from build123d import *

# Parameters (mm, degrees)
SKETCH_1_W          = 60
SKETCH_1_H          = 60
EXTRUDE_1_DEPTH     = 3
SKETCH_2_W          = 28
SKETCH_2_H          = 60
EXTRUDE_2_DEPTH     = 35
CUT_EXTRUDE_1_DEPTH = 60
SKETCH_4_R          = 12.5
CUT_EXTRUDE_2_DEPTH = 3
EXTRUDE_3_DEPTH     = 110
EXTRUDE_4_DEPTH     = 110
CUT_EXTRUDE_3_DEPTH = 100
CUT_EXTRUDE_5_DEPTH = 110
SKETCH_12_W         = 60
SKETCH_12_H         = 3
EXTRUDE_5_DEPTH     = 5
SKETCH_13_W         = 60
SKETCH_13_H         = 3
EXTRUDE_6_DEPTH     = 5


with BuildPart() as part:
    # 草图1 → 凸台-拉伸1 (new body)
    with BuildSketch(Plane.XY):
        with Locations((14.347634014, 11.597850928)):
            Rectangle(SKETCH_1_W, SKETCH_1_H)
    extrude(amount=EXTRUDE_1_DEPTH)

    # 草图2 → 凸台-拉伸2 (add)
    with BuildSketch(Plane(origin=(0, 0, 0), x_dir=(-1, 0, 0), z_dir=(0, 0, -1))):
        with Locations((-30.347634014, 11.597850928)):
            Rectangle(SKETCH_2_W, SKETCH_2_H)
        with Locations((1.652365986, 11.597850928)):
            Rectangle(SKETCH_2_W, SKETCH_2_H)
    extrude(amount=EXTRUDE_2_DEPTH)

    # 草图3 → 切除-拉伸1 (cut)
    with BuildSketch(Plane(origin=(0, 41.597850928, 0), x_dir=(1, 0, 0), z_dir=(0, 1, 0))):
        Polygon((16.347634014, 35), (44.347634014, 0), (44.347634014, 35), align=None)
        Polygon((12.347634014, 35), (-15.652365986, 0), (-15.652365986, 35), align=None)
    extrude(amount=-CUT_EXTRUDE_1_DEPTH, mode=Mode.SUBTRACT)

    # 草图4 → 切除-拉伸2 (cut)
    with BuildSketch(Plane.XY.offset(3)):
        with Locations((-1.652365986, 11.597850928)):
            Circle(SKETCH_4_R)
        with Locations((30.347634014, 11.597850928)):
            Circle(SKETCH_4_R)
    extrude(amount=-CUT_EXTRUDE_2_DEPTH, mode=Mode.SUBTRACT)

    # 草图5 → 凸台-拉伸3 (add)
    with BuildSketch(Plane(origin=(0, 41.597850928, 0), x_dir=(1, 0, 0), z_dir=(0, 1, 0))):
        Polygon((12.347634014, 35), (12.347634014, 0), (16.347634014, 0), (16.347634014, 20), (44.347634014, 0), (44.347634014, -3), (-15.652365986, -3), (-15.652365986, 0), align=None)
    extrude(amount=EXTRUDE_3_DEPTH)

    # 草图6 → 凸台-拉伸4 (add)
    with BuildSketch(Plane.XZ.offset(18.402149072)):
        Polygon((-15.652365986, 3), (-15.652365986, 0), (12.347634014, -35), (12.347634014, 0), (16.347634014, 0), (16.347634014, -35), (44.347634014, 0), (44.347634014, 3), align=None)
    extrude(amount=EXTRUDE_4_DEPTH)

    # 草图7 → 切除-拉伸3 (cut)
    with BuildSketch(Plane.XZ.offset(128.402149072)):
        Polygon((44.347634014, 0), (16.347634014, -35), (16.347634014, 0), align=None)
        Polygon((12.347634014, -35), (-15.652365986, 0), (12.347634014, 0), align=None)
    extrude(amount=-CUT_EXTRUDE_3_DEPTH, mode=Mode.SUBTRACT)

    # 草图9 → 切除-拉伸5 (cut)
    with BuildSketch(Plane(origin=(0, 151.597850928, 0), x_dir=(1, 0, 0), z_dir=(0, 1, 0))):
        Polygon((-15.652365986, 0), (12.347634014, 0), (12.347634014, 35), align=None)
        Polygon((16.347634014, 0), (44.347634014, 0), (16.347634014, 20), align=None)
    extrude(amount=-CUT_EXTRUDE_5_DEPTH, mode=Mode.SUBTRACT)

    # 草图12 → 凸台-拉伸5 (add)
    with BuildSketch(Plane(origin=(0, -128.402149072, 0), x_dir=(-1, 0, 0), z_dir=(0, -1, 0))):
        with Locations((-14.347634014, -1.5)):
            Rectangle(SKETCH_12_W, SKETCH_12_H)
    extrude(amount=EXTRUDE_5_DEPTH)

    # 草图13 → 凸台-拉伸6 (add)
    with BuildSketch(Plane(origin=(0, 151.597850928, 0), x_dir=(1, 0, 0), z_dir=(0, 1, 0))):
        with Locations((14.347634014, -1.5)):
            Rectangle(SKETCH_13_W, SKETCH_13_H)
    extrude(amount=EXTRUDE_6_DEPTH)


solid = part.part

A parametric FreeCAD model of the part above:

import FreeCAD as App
import Part
import Sketcher
Q = App.Units.Quantity

doc = App.newDocument("Part")
body = doc.addObject("PartDesign::Body", "Body")

# Sketch on XY plane
sketch1 = body.newObject("Sketcher::SketchObject", "Sketch")
sketch1.AttachmentSupport = (doc.getObject("XY_Plane"), [""])
sketch1.MapMode = "FlatFace"
sketch1.addGeometry(Part.LineSegment(App.Vector(-15.652366, 41.597851, 0), App.Vector(-15.652366, -18.402149, 0)), False)
sketch1.addGeometry(Part.LineSegment(App.Vector(-15.652366, -18.402149, 0), App.Vector(44.347634, -18.402149, 0)), False)
sketch1.addGeometry(Part.LineSegment(App.Vector(44.347634, -18.402149, 0), App.Vector(44.347634, 41.597851, 0)), False)
sketch1.addGeometry(Part.LineSegment(App.Vector(44.347634, 41.597851, 0), App.Vector(-15.652366, 41.597851, 0)), False)
sketch1.addConstraint(Sketcher.Constraint("Coincident", 0, 2, 1, 1))
sketch1.addConstraint(Sketcher.Constraint("Coincident", 1, 2, 2, 1))
sketch1.addConstraint(Sketcher.Constraint("Coincident", 2, 2, 3, 1))
sketch1.addConstraint(Sketcher.Constraint("Coincident", 3, 2, 0, 1))
sketch1.addConstraint(Sketcher.Constraint("Vertical", 0))
sketch1.addConstraint(Sketcher.Constraint("Horizontal", 1))
sketch1.addConstraint(Sketcher.Constraint("Vertical", 2))
sketch1.addConstraint(Sketcher.Constraint("Horizontal", 3))
sketch1.addConstraint(Sketcher.Constraint("Equal", 3, 0))
sketch1.addConstraint(Sketcher.Constraint("DistanceX", 1, 1, 1, 2, Q("60 mm")))
sketch1.addConstraint(Sketcher.Constraint("DistanceY", 0, 2, -1, 1, Q("18.402149 mm")))
sketch1.addConstraint(Sketcher.Constraint("DistanceX", 0, 2, -1, 1, Q("15.652366 mm")))
pad1 = body.newObject("PartDesign::Pad", "Pad")
pad1.Profile = sketch1
pad1.Length = 3

# Sketch on XY plane
sketch2 = body.newObject("Sketcher::SketchObject", "Sketch001")
sketch2.AttachmentSupport = (doc.getObject("XY_Plane"), [""])
sketch2.MapMode = "FlatFace"
sketch2.addGeometry(Part.LineSegment(App.Vector(44.347634, 41.597851, 0), App.Vector(44.347634, -18.402149, 0)), False)
sketch2.addGeometry(Part.LineSegment(App.Vector(44.347634, -18.402149, 0), App.Vector(16.347634, -18.402149, 0)), False)
sketch2.addGeometry(Part.LineSegment(App.Vector(16.347634, -18.402149, 0), App.Vector(16.347634, 41.597851, 0)), False)
sketch2.addGeometry(Part.LineSegment(App.Vector(16.347634, 41.597851, 0), App.Vector(44.347634, 41.597851, 0)), False)
sketch2.addGeometry(Part.LineSegment(App.Vector(12.347634, 41.597851, 0), App.Vector(12.347634, -18.402149, 0)), False)
sketch2.addGeometry(Part.LineSegment(App.Vector(12.347634, -18.402149, 0), App.Vector(-15.652366, -18.402149, 0)), False)
sketch2.addGeometry(Part.LineSegment(App.Vector(-15.652366, -18.402149, 0), App.Vector(-15.652366, 41.597851, 0)), False)
sketch2.addGeometry(Part.LineSegment(App.Vector(-15.652366, 41.597851, 0), App.Vector(12.347634, 41.597851, 0)), False)
sketch2.addConstraint(Sketcher.Constraint("Coincident", 0, 2, 1, 1))
sketch2.addConstraint(Sketcher.Constraint("Coincident", 1, 2, 2, 1))
sketch2.addConstraint(Sketcher.Constraint("Coincident", 2, 2, 3, 1))
sketch2.addConstraint(Sketcher.Constraint("Coincident", 3, 2, 0, 1))
sketch2.addConstraint(Sketcher.Constraint("Coincident", 4, 2, 5, 1))
sketch2.addConstraint(Sketcher.Constraint("Coincident", 5, 2, 6, 1))
sketch2.addConstraint(Sketcher.Constraint("Coincident", 6, 2, 7, 1))
sketch2.addConstraint(Sketcher.Constraint("Coincident", 7, 2, 4, 1))
sketch2.addConstraint(Sketcher.Constraint("Vertical", 0))
sketch2.addConstraint(Sketcher.Constraint("Horizontal", 1))
sketch2.addConstraint(Sketcher.Constraint("Vertical", 2))
sketch2.addConstraint(Sketcher.Constraint("Horizontal", 3))
sketch2.addConstraint(Sketcher.Constraint("Vertical", 4))
sketch2.addConstraint(Sketcher.Constraint("Horizontal", 5))
sketch2.addConstraint(Sketcher.Constraint("Vertical", 6))
sketch2.addConstraint(Sketcher.Constraint("Horizontal", 7))
sketch2.addConstraint(Sketcher.Constraint("Horizontal", 1, 2, 4, 2))
sketch2.addConstraint(Sketcher.Constraint("Horizontal", 3, 2, 6, 2))
sketch2.addConstraint(Sketcher.Constraint("Equal", 3, 5))
sketch2.addConstraint(Sketcher.Constraint("DistanceX", 1, 2, 1, 1, Q("28 mm")))
sketch2.addConstraint(Sketcher.Constraint("DistanceY", 0, 2, 0, 1, Q("60 mm")))
sketch2.addConstraint(Sketcher.Constraint("DistanceX", 4, 2, 1, 2, Q("4 mm")))
sketch2.addConstraint(Sketcher.Constraint("DistanceY", 0, 2, -1, 1, Q("18.402149 mm")))
sketch2.addConstraint(Sketcher.Constraint("DistanceX", -1, 1, 0, 2, Q("44.347634 mm")))
pad2 = body.newObject("PartDesign::Pad", "Pad001")
pad2.Profile = sketch2
pad2.Length = 35
pad2.Reversed = True

# Sketch on XZ plane
sketch3 = body.newObject("Sketcher::SketchObject", "Sketch002")
sketch3.AttachmentSupport = (doc.getObject("XZ_Plane"), [""])
sketch3.MapMode = "FlatFace"
sketch3.AttachmentOffset = App.Placement(App.Vector(0, 0, -41.597851), App.Rotation())
sketch3.addGeometry(Part.LineSegment(App.Vector(16.347634, -35, 0), App.Vector(44.347634, 0, 0)), False)
sketch3.addGeometry(Part.LineSegment(App.Vector(44.347634, 0, 0), App.Vector(44.347634, -35, 0)), False)
sketch3.addGeometry(Part.LineSegment(App.Vector(44.347634, -35, 0), App.Vector(16.347634, -35, 0)), False)
sketch3.addGeometry(Part.LineSegment(App.Vector(-15.652366, 0, 0), App.Vector(12.347634, -35, 0)), False)
sketch3.addGeometry(Part.LineSegment(App.Vector(12.347634, -35, 0), App.Vector(-15.652366, -35, 0)), False)
sketch3.addGeometry(Part.LineSegment(App.Vector(-15.652366, -35, 0), App.Vector(-15.652366, 0, 0)), False)
sketch3.addConstraint(Sketcher.Constraint("Coincident", 0, 2, 1, 1))
sketch3.addConstraint(Sketcher.Constraint("Coincident", 1, 2, 2, 1))
sketch3.addConstraint(Sketcher.Constraint("Coincident", 2, 2, 0, 1))
sketch3.addConstraint(Sketcher.Constraint("Coincident", 3, 2, 4, 1))
sketch3.addConstraint(Sketcher.Constraint("Coincident", 4, 2, 5, 1))
sketch3.addConstraint(Sketcher.Constraint("Coincident", 5, 2, 3, 1))
sketch3.addConstraint(Sketcher.Constraint("Vertical", 1))
sketch3.addConstraint(Sketcher.Constraint("Horizontal", 2))
sketch3.addConstraint(Sketcher.Constraint("Horizontal", 4))
sketch3.addConstraint(Sketcher.Constraint("Vertical", 5))
sketch3.addConstraint(Sketcher.Constraint("PointOnObject", 0, 2, -1))
sketch3.addConstraint(Sketcher.Constraint("PointOnObject", 5, 2, -1))
sketch3.addConstraint(Sketcher.Constraint("Horizontal", 2, 2, 3, 2))
sketch3.addConstraint(Sketcher.Constraint("Equal", 2, 4))
sketch3.addConstraint(Sketcher.Constraint("DistanceX", 2, 2, 2, 1, Q("28 mm")))
sketch3.addConstraint(Sketcher.Constraint("DistanceY", 1, 2, 1, 1, Q("35 mm")))
sketch3.addConstraint(Sketcher.Constraint("DistanceX", 3, 2, 2, 2, Q("4 mm")))
sketch3.addConstraint(Sketcher.Constraint("DistanceX", -1, 1, 0, 2, Q("44.347634 mm")))
pocket1 = body.newObject("PartDesign::Pocket", "Pocket")
pocket1.Profile = sketch3
pocket1.Length = 60
pocket1.Reversed = True

# Sketch on XY plane
sketch4 = body.newObject("Sketcher::SketchObject", "Sketch003")
sketch4.AttachmentSupport = (doc.getObject("XY_Plane"), [""])
sketch4.MapMode = "FlatFace"
sketch4.AttachmentOffset = App.Placement(App.Vector(0, 0, 3), App.Rotation())
sketch4.addGeometry(Part.Circle(App.Vector(-1.652366, 11.597851, 0), App.Vector(0, 0, 1), 12.5), False)
sketch4.addGeometry(Part.Circle(App.Vector(30.347634, 11.597851, 0), App.Vector(0, 0, 1), 12.5), False)
sketch4.addConstraint(Sketcher.Constraint("Equal", 0, 1))
sketch4.addConstraint(Sketcher.Constraint("Horizontal", 0, 3, 1, 3))
sketch4.addConstraint(Sketcher.Constraint("Diameter", 0, Q("25 mm")))
sketch4.addConstraint(Sketcher.Constraint("DistanceX", 0, 3, 1, 3, Q("32 mm")))
sketch4.addConstraint(Sketcher.Constraint("DistanceY", -1, 1, 0, 3, Q("11.597851 mm")))
sketch4.addConstraint(Sketcher.Constraint("DistanceX", 0, 3, -1, 1, Q("1.652366 mm")))
pocket2 = body.newObject("PartDesign::Pocket", "Pocket001")
pocket2.Profile = sketch4
pocket2.Length = 3

# Sketch on XZ plane
sketch5 = body.newObject("Sketcher::SketchObject", "Sketch004")
sketch5.AttachmentSupport = (doc.getObject("XZ_Plane"), [""])
sketch5.MapMode = "FlatFace"
sketch5.AttachmentOffset = App.Placement(App.Vector(0, 0, -41.597851), App.Rotation())
sketch5.addGeometry(Part.LineSegment(App.Vector(12.347634, 0, 0), App.Vector(12.347634, -35, 0)), False)
sketch5.addGeometry(Part.LineSegment(App.Vector(12.347634, -35, 0), App.Vector(-15.652366, 0, 0)), False)
sketch5.addGeometry(Part.LineSegment(App.Vector(-15.652366, 0, 0), App.Vector(-15.652366, 3, 0)), False)
sketch5.addGeometry(Part.LineSegment(App.Vector(-15.652366, 3, 0), App.Vector(44.347634, 3, 0)), False)
sketch5.addGeometry(Part.LineSegment(App.Vector(44.347634, 3, 0), App.Vector(44.347634, 0, 0)), False)
sketch5.addGeometry(Part.LineSegment(App.Vector(44.347634, 0, 0), App.Vector(16.347634, -20, 0)), False)
sketch5.addGeometry(Part.LineSegment(App.Vector(16.347634, -20, 0), App.Vector(16.347634, 0, 0)), False)
sketch5.addGeometry(Part.LineSegment(App.Vector(16.347634, 0, 0), App.Vector(12.347634, 0, 0)), False)
sketch5.addConstraint(Sketcher.Constraint("Coincident", 0, 2, 1, 1))
sketch5.addConstraint(Sketcher.Constraint("Coincident", 1, 2, 2, 1))
sketch5.addConstraint(Sketcher.Constraint("Coincident", 2, 2, 3, 1))
sketch5.addConstraint(Sketcher.Constraint("Coincident", 3, 2, 4, 1))
sketch5.addConstraint(Sketcher.Constraint("Coincident", 4, 2, 5, 1))
sketch5.addConstraint(Sketcher.Constraint("Coincident", 5, 2, 6, 1))
sketch5.addConstraint(Sketcher.Constraint("Coincident", 6, 2, 7, 1))
sketch5.addConstraint(Sketcher.Constraint("Coincident", 7, 2, 0, 1))
sketch5.addConstraint(Sketcher.Constraint("Vertical", 0))
sketch5.addConstraint(Sketcher.Constraint("Vertical", 2))
sketch5.addConstraint(Sketcher.Constraint("Horizontal", 3))
sketch5.addConstraint(Sketcher.Constraint("Vertical", 4))
sketch5.addConstraint(Sketcher.Constraint("Vertical", 6))
sketch5.addConstraint(Sketcher.Constraint("Horizontal", 7))
sketch5.addConstraint(Sketcher.Constraint("PointOnObject", 1, 2, -1))
sketch5.addConstraint(Sketcher.Constraint("PointOnObject", 4, 2, -1))
sketch5.addConstraint(Sketcher.Constraint("PointOnObject", 6, 2, -1))
sketch5.addConstraint(Sketcher.Constraint("DistanceX", 3, 1, 3, 2, Q("60 mm")))
sketch5.addConstraint(Sketcher.Constraint("DistanceX", 7, 2, 7, 1, Q("4 mm")))
sketch5.addConstraint(Sketcher.Constraint("DistanceY", 0, 2, 0, 1, Q("35 mm")))
sketch5.addConstraint(Sketcher.Constraint("DistanceY", 2, 1, 2, 2, Q("3 mm")))
sketch5.addConstraint(Sketcher.Constraint("DistanceY", 6, 1, 6, 2, Q("20 mm")))
sketch5.addConstraint(Sketcher.Constraint("DistanceX", 1, 2, 0, 2, Q("28 mm")))
sketch5.addConstraint(Sketcher.Constraint("DistanceX", -1, 1, 0, 2, Q("12.347634 mm")))
pad3 = body.newObject("PartDesign::Pad", "Pad002")
pad3.Profile = sketch5
pad3.Length = 110
pad3.Reversed = True

# Sketch on XZ plane
sketch6 = body.newObject("Sketcher::SketchObject", "Sketch005")
sketch6.AttachmentSupport = (doc.getObject("XZ_Plane"), [""])
sketch6.MapMode = "FlatFace"
sketch6.AttachmentOffset = App.Placement(App.Vector(0, 0, 18.402149), App.Rotation())
sketch6.addGeometry(Part.LineSegment(App.Vector(-15.652366, 3, 0), App.Vector(-15.652366, 0, 0)), False)
sketch6.addGeometry(Part.LineSegment(App.Vector(-15.652366, 0, 0), App.Vector(12.347634, -35, 0)), False)
sketch6.addGeometry(Part.LineSegment(App.Vector(12.347634, -35, 0), App.Vector(12.347634, 0, 0)), False)
sketch6.addGeometry(Part.LineSegment(App.Vector(12.347634, 0, 0), App.Vector(16.347634, 0, 0)), False)
sketch6.addGeometry(Part.LineSegment(App.Vector(16.347634, 0, 0), App.Vector(16.347634, -35, 0)), False)
sketch6.addGeometry(Part.LineSegment(App.Vector(16.347634, -35, 0), App.Vector(44.347634, 0, 0)), False)
sketch6.addGeometry(Part.LineSegment(App.Vector(44.347634, 0, 0), App.Vector(44.347634, 3, 0)), False)
sketch6.addGeometry(Part.LineSegment(App.Vector(44.347634, 3, 0), App.Vector(-15.652366, 3, 0)), False)
sketch6.addConstraint(Sketcher.Constraint("Coincident", 0, 2, 1, 1))
sketch6.addConstraint(Sketcher.Constraint("Coincident", 1, 2, 2, 1))
sketch6.addConstraint(Sketcher.Constraint("Coincident", 2, 2, 3, 1))
sketch6.addConstraint(Sketcher.Constraint("Coincident", 3, 2, 4, 1))
sketch6.addConstraint(Sketcher.Constraint("Coincident", 4, 2, 5, 1))
sketch6.addConstraint(Sketcher.Constraint("Coincident", 5, 2, 6, 1))
sketch6.addConstraint(Sketcher.Constraint("Coincident", 6, 2, 7, 1))
sketch6.addConstraint(Sketcher.Constraint("Coincident", 7, 2, 0, 1))
sketch6.addConstraint(Sketcher.Constraint("Vertical", 0))
sketch6.addConstraint(Sketcher.Constraint("Vertical", 2))
sketch6.addConstraint(Sketcher.Constraint("Horizontal", 3))
sketch6.addConstraint(Sketcher.Constraint("Vertical", 4))
sketch6.addConstraint(Sketcher.Constraint("Vertical", 6))
sketch6.addConstraint(Sketcher.Constraint("Horizontal", 7))
sketch6.addConstraint(Sketcher.Constraint("PointOnObject", 0, 2, -1))
sketch6.addConstraint(Sketcher.Constraint("PointOnObject", 2, 2, -1))
sketch6.addConstraint(Sketcher.Constraint("PointOnObject", 5, 2, -1))
sketch6.addConstraint(Sketcher.Constraint("Horizontal", 1, 2, 4, 2))
sketch6.addConstraint(Sketcher.Constraint("Equal", 1, 5))
sketch6.addConstraint(Sketcher.Constraint("DistanceX", 3, 1, 3, 2, Q("4 mm")))
sketch6.addConstraint(Sketcher.Constraint("DistanceX", 7, 2, 7, 1, Q("60 mm")))
sketch6.addConstraint(Sketcher.Constraint("DistanceY", 0, 2, 0, 1, Q("3 mm")))
sketch6.addConstraint(Sketcher.Constraint("DistanceY", 2, 1, 2, 2, Q("35 mm")))
sketch6.addConstraint(Sketcher.Constraint("DistanceX", 0, 2, -1, 1, Q("15.652366 mm")))
pad4 = body.newObject("PartDesign::Pad", "Pad003")
pad4.Profile = sketch6
pad4.Length = 110

# Sketch on XZ plane
sketch7 = body.newObject("Sketcher::SketchObject", "Sketch006")
sketch7.AttachmentSupport = (doc.getObject("XZ_Plane"), [""])
sketch7.MapMode = "FlatFace"
sketch7.AttachmentOffset = App.Placement(App.Vector(0, 0, 128.402149), App.Rotation())
sketch7.addGeometry(Part.LineSegment(App.Vector(16.347634, -35, 0), App.Vector(44.347634, 0, 0)), False)
sketch7.addGeometry(Part.LineSegment(App.Vector(44.347634, 0, 0), App.Vector(16.347634, 0, 0)), False)
sketch7.addGeometry(Part.LineSegment(App.Vector(16.347634, 0, 0), App.Vector(16.347634, -35, 0)), False)
sketch7.addGeometry(Part.LineSegment(App.Vector(-15.652366, 0, 0), App.Vector(12.347634, -35, 0)), False)
sketch7.addGeometry(Part.LineSegment(App.Vector(12.347634, -35, 0), App.Vector(12.347634, 0, 0)), False)
sketch7.addGeometry(Part.LineSegment(App.Vector(12.347634, 0, 0), App.Vector(-15.652366, 0, 0)), False)
sketch7.addConstraint(Sketcher.Constraint("Coincident", 0, 2, 1, 1))
sketch7.addConstraint(Sketcher.Constraint("Coincident", 1, 2, 2, 1))
sketch7.addConstraint(Sketcher.Constraint("Coincident", 2, 2, 0, 1))
sketch7.addConstraint(Sketcher.Constraint("Coincident", 3, 2, 4, 1))
sketch7.addConstraint(Sketcher.Constraint("Coincident", 4, 2, 5, 1))
sketch7.addConstraint(Sketcher.Constraint("Coincident", 5, 2, 3, 1))
sketch7.addConstraint(Sketcher.Constraint("Horizontal", 1))
sketch7.addConstraint(Sketcher.Constraint("Vertical", 2))
sketch7.addConstraint(Sketcher.Constraint("Vertical", 4))
sketch7.addConstraint(Sketcher.Constraint("Horizontal", 5))
sketch7.addConstraint(Sketcher.Constraint("PointOnObject", 0, 2, -1))
sketch7.addConstraint(Sketcher.Constraint("PointOnObject", 4, 2, -1))
sketch7.addConstraint(Sketcher.Constraint("Horizontal", 2, 2, 3, 2))
sketch7.addConstraint(Sketcher.Constraint("Equal", 1, 5))
sketch7.addConstraint(Sketcher.Constraint("DistanceX", 1, 2, 1, 1, Q("28 mm")))
sketch7.addConstraint(Sketcher.Constraint("DistanceY", 2, 2, 2, 1, Q("35 mm")))
sketch7.addConstraint(Sketcher.Constraint("DistanceX", 3, 2, 2, 2, Q("4 mm")))
sketch7.addConstraint(Sketcher.Constraint("DistanceX", -1, 1, 0, 2, Q("44.347634 mm")))
pocket3 = body.newObject("PartDesign::Pocket", "Pocket002")
pocket3.Profile = sketch7
pocket3.Length = 100

# Sketch on XZ plane
sketch8 = body.newObject("Sketcher::SketchObject", "Sketch007")
sketch8.AttachmentSupport = (doc.getObject("XZ_Plane"), [""])
sketch8.MapMode = "FlatFace"
sketch8.AttachmentOffset = App.Placement(App.Vector(0, 0, -151.597851), App.Rotation())
sketch8.addGeometry(Part.LineSegment(App.Vector(-15.652366, 0, 0), App.Vector(12.347634, 0, 0)), False)
sketch8.addGeometry(Part.LineSegment(App.Vector(12.347634, 0, 0), App.Vector(12.347634, -35, 0)), False)
sketch8.addGeometry(Part.LineSegment(App.Vector(12.347634, -35, 0), App.Vector(-15.652366, 0, 0)), False)
sketch8.addGeometry(Part.LineSegment(App.Vector(16.347634, 0, 0), App.Vector(44.347634, 0, 0)), False)
sketch8.addGeometry(Part.LineSegment(App.Vector(44.347634, 0, 0), App.Vector(16.347634, -20, 0)), False)
sketch8.addGeometry(Part.LineSegment(App.Vector(16.347634, -20, 0), App.Vector(16.347634, 0, 0)), False)
sketch8.addConstraint(Sketcher.Constraint("Coincident", 0, 2, 1, 1))
sketch8.addConstraint(Sketcher.Constraint("Coincident", 1, 2, 2, 1))
sketch8.addConstraint(Sketcher.Constraint("Coincident", 2, 2, 0, 1))
sketch8.addConstraint(Sketcher.Constraint("Coincident", 3, 2, 4, 1))
sketch8.addConstraint(Sketcher.Constraint("Coincident", 4, 2, 5, 1))
sketch8.addConstraint(Sketcher.Constraint("Coincident", 5, 2, 3, 1))
sketch8.addConstraint(Sketcher.Constraint("Horizontal", 0))
sketch8.addConstraint(Sketcher.Constraint("Vertical", 1))
sketch8.addConstraint(Sketcher.Constraint("Horizontal", 3))
sketch8.addConstraint(Sketcher.Constraint("Vertical", 5))
sketch8.addConstraint(Sketcher.Constraint("PointOnObject", 0, 2, -1))
sketch8.addConstraint(Sketcher.Constraint("PointOnObject", 3, 2, -1))
sketch8.addConstraint(Sketcher.Constraint("Equal", 0, 3))
sketch8.addConstraint(Sketcher.Constraint("DistanceX", 0, 1, 0, 2, Q("28 mm")))
sketch8.addConstraint(Sketcher.Constraint("DistanceY", 1, 2, 1, 1, Q("35 mm")))
sketch8.addConstraint(Sketcher.Constraint("DistanceY", 5, 1, 5, 2, Q("20 mm")))
sketch8.addConstraint(Sketcher.Constraint("DistanceX", 0, 2, 3, 2, Q("32 mm")))
sketch8.addConstraint(Sketcher.Constraint("DistanceX", -1, 1, 0, 2, Q("12.347634 mm")))
pocket4 = body.newObject("PartDesign::Pocket", "Pocket003")
pocket4.Profile = sketch8
pocket4.Length = 110
pocket4.Reversed = True

# Sketch on XZ plane
sketch9 = body.newObject("Sketcher::SketchObject", "Sketch008")
sketch9.AttachmentSupport = (doc.getObject("XZ_Plane"), [""])
sketch9.MapMode = "FlatFace"
sketch9.AttachmentOffset = App.Placement(App.Vector(0, 0, 128.402149), App.Rotation())
sketch9.addGeometry(Part.LineSegment(App.Vector(44.347634, 0, 0), App.Vector(44.347634, 3, 0)), False)
sketch9.addGeometry(Part.LineSegment(App.Vector(44.347634, 3, 0), App.Vector(-15.652366, 3, 0)), False)
sketch9.addGeometry(Part.LineSegment(App.Vector(-15.652366, 3, 0), App.Vector(-15.652366, 0, 0)), False)
sketch9.addGeometry(Part.LineSegment(App.Vector(-15.652366, 0, 0), App.Vector(44.347634, 0, 0)), False)
sketch9.addConstraint(Sketcher.Constraint("Coincident", 0, 2, 1, 1))
sketch9.addConstraint(Sketcher.Constraint("Coincident", 1, 2, 2, 1))
sketch9.addConstraint(Sketcher.Constraint("Coincident", 2, 2, 3, 1))
sketch9.addConstraint(Sketcher.Constraint("Coincident", 3, 2, 0, 1))
sketch9.addConstraint(Sketcher.Constraint("Vertical", 0))
sketch9.addConstraint(Sketcher.Constraint("Horizontal", 1))
sketch9.addConstraint(Sketcher.Constraint("Vertical", 2))
sketch9.addConstraint(Sketcher.Constraint("Horizontal", 3))
sketch9.addConstraint(Sketcher.Constraint("PointOnObject", 2, 2, -1))
sketch9.addConstraint(Sketcher.Constraint("DistanceX", 1, 2, 1, 1, Q("60 mm")))
sketch9.addConstraint(Sketcher.Constraint("DistanceY", 0, 1, 0, 2, Q("3 mm")))
sketch9.addConstraint(Sketcher.Constraint("DistanceX", -1, 1, 0, 2, Q("44.347634 mm")))
pad5 = body.newObject("PartDesign::Pad", "Pad004")
pad5.Profile = sketch9
pad5.Length = 5

# Sketch on XZ plane
sketch10 = body.newObject("Sketcher::SketchObject", "Sketch009")
sketch10.AttachmentSupport = (doc.getObject("XZ_Plane"), [""])
sketch10.MapMode = "FlatFace"
sketch10.AttachmentOffset = App.Placement(App.Vector(0, 0, -151.597851), App.Rotation())
sketch10.addGeometry(Part.LineSegment(App.Vector(-15.652366, 0, 0), App.Vector(-15.652366, 3, 0)), False)
sketch10.addGeometry(Part.LineSegment(App.Vector(-15.652366, 3, 0), App.Vector(44.347634, 3, 0)), False)
sketch10.addGeometry(Part.LineSegment(App.Vector(44.347634, 3, 0), App.Vector(44.347634, 0, 0)), False)
sketch10.addGeometry(Part.LineSegment(App.Vector(44.347634, 0, 0), App.Vector(-15.652366, 0, 0)), False)
sketch10.addConstraint(Sketcher.Constraint("Coincident", 0, 2, 1, 1))
sketch10.addConstraint(Sketcher.Constraint("Coincident", 1, 2, 2, 1))
sketch10.addConstraint(Sketcher.Constraint("Coincident", 2, 2, 3, 1))
sketch10.addConstraint(Sketcher.Constraint("Coincident", 3, 2, 0, 1))
sketch10.addConstraint(Sketcher.Constraint("Vertical", 0))
sketch10.addConstraint(Sketcher.Constraint("Horizontal", 1))
sketch10.addConstraint(Sketcher.Constraint("Vertical", 2))
sketch10.addConstraint(Sketcher.Constraint("Horizontal", 3))
sketch10.addConstraint(Sketcher.Constraint("PointOnObject", 2, 2, -1))
sketch10.addConstraint(Sketcher.Constraint("DistanceX", 1, 1, 1, 2, Q("60 mm")))
sketch10.addConstraint(Sketcher.Constraint("DistanceY", 0, 1, 0, 2, Q("3 mm")))
sketch10.addConstraint(Sketcher.Constraint("DistanceX", 0, 2, -1, 1, Q("15.652366 mm")))
pad6 = body.newObject("PartDesign::Pad", "Pad005")
pad6.Profile = sketch10
pad6.Length = 5
pad6.Reversed = True

doc.recompute()
